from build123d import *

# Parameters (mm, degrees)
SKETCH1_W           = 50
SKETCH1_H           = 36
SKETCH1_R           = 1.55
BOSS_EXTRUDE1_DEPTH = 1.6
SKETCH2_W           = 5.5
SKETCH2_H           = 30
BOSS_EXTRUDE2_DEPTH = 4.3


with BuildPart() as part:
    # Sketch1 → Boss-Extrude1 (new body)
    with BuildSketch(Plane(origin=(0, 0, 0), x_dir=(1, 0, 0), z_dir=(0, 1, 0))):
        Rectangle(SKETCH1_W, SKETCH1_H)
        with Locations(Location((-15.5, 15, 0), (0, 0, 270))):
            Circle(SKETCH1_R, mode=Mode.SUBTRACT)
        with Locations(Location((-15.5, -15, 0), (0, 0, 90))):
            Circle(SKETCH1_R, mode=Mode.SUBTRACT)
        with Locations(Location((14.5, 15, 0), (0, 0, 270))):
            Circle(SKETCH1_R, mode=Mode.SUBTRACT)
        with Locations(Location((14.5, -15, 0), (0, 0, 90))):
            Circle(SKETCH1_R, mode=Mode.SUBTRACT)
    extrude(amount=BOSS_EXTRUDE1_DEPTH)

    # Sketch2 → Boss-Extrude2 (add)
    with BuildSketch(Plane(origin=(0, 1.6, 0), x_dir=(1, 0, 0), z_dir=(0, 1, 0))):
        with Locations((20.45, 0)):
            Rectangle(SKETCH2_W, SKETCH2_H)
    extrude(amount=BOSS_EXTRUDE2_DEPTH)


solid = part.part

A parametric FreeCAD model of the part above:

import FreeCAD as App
import Part
import Sketcher
Q = App.Units.Quantity

doc = App.newDocument("Part")
body = doc.addObject("PartDesign::Body", "Body")

# Sketch on XZ plane
sketch1 = body.newObject("Sketcher::SketchObject", "Sketch")
sketch1.AttachmentSupport = (doc.getObject("XZ_Plane"), [""])
sketch1.MapMode = "FlatFace"
sketch1.addGeometry(Part.LineSegment(App.Vector(-25, -18, 0), App.Vector(-25, 18, 0)), False)
sketch1.addGeometry(Part.LineSegment(App.Vector(-25, 18, 0), App.Vector(25, 18, 0)), False)
sketch1.addGeometry(Part.LineSegment(App.Vector(25, 18, 0), App.Vector(25, -18, 0)), False)
sketch1.addGeometry(Part.LineSegment(App.Vector(25, -18, 0), App.Vector(-25, -18, 0)), False)
sketch1.addGeometry(Part.Circle(App.Vector(-15.5, 15, 0), App.Vector(0, 0, 1), 1.6), False)
sketch1.addGeometry(Part.Circle(App.Vector(14.5, 15, 0), App.Vector(0, 0, 1), 1.6), False)
sketch1.addGeometry(Part.Circle(App.Vector(-15.5, -15, 0), App.Vector(0, 0, 1), 1.6), False)
sketch1.addGeometry(Part.Circle(App.Vector(14.5, -15, 0), App.Vector(0, 0, 1), 1.6), False)
sketch1.addConstraint(Sketcher.Constraint("Coincident", 0, 2, 1, 1))
sketch1.addConstraint(Sketcher.Constraint("Coincident", 1, 2, 2, 1))
sketch1.addConstraint(Sketcher.Constraint("Coincident", 2, 2, 3, 1))
sketch1.addConstraint(Sketcher.Constraint("Coincident", 3, 2, 0, 1))
sketch1.addConstraint(Sketcher.Constraint("Vertical", 0))
sketch1.addConstraint(Sketcher.Constraint("Horizontal", 1))
sketch1.addConstraint(Sketcher.Constraint("Vertical", 2))
sketch1.addConstraint(Sketcher.Constraint("Horizontal", 3))
sketch1.addConstraint(Sketcher.Constraint("Equal", 4, 5))
sketch1.addConstraint(Sketcher.Constraint("Equal", 5, 6))
sketch1.addConstraint(Sketcher.Constraint("Equal", 6, 7))
sketch1.addConstraint(Sketcher.Constraint("Symmetric", 0, 2, 2, 2, -1, 1))
sketch1.addConstraint(Sketcher.Constraint("Symmetric", 4, 3, 6, 3, -1))
sketch1.addConstraint(Sketcher.Constraint("Symmetric", 5, 3, 7, 3, -1))
sketch1.addConstraint(Sketcher.Constraint("Horizontal", 4, 3, 5, 3))
sketch1.addConstraint(Sketcher.Constraint("Diameter", 4, Q("3.1 mm")))
sketch1.addConstraint(Sketcher.Constraint("DistanceX", 1, 1, 1, 2, Q("50 mm")))
sketch1.addConstraint(Sketcher.Constraint("DistanceY", 0, 1, 0, 2, Q("36 mm")))
sketch1.addConstraint(Sketcher.Constraint("DistanceY", -1, 1, 4, 3, Q("15 mm")))
sketch1.addConstraint(Sketcher.Constraint("DistanceX", 4, 3, 5, 3, Q("30 mm")))
sketch1.addConstraint(Sketcher.Constraint("DistanceX", 4, 3, -1, 1, Q("15.5 mm")))
pad1 = body.newObject("PartDesign::Pad", "Pad")
pad1.Profile = sketch1
pad1.Length = 1.6
pad1.Reversed = True

# Sketch on XZ plane
sketch2 = body.newObject("Sketcher::SketchObject", "Sketch001")
sketch2.AttachmentSupport = (doc.getObject("XZ_Plane"), [""])
sketch2.MapMode = "FlatFace"
sketch2.AttachmentOffset = App.Placement(App.Vector(0, 0, -1.6), App.Rotation())
sketch2.addGeometry(Part.LineSegment(App.Vector(18, -15, 0), App.Vector(18, 15, 0)), False)
sketch2.addGeometry(Part.LineSegment(App.Vector(18, 15, 0), App.Vector(23, 15, 0)), False)
sketch2.addGeometry(Part.LineSegment(App.Vector(23, 15, 0), App.Vector(23, -15, 0)), False)
sketch2.addGeometry(Part.LineSegment(App.Vector(23, -15, 0), App.Vector(18, -15, 0)), False)
sketch2.addConstraint(Sketcher.Constraint("Coincident", 0, 2, 1, 1))
sketch2.addConstraint(Sketcher.Constraint("Coincident", 1, 2, 2, 1))
sketch2.addConstraint(Sketcher.Constraint("Coincident", 2, 2, 3, 1))
sketch2.addConstraint(Sketcher.Constraint("Coincident", 3, 2, 0, 1))
sketch2.addConstraint(Sketcher.Constraint("Vertical", 0))
sketch2.addConstraint(Sketcher.Constraint("Horizontal", 1))
sketch2.addConstraint(Sketcher.Constraint("Vertical", 2))
sketch2.addConstraint(Sketcher.Constraint("Horizontal", 3))
sketch2.addConstraint(Sketcher.Constraint("DistanceY", 0, 1, 0, 2, Q("30 mm")))
sketch2.addConstraint(Sketcher.Constraint("DistanceX", 1, 1, 1, 2, Q("5.5 mm")))
sketch2.addConstraint(Sketcher.Constraint("DistanceY", -1, 1, 0, 2, Q("15 mm")))
sketch2.addConstraint(Sketcher.Constraint("DistanceX", -1, 1, 0, 2, Q("17.7 mm")))
pad2 = body.newObject("PartDesign::Pad", "Pad001")
pad2.Profile = sketch2
pad2.Length = 4.3
pad2.Reversed = True

doc.recompute()
